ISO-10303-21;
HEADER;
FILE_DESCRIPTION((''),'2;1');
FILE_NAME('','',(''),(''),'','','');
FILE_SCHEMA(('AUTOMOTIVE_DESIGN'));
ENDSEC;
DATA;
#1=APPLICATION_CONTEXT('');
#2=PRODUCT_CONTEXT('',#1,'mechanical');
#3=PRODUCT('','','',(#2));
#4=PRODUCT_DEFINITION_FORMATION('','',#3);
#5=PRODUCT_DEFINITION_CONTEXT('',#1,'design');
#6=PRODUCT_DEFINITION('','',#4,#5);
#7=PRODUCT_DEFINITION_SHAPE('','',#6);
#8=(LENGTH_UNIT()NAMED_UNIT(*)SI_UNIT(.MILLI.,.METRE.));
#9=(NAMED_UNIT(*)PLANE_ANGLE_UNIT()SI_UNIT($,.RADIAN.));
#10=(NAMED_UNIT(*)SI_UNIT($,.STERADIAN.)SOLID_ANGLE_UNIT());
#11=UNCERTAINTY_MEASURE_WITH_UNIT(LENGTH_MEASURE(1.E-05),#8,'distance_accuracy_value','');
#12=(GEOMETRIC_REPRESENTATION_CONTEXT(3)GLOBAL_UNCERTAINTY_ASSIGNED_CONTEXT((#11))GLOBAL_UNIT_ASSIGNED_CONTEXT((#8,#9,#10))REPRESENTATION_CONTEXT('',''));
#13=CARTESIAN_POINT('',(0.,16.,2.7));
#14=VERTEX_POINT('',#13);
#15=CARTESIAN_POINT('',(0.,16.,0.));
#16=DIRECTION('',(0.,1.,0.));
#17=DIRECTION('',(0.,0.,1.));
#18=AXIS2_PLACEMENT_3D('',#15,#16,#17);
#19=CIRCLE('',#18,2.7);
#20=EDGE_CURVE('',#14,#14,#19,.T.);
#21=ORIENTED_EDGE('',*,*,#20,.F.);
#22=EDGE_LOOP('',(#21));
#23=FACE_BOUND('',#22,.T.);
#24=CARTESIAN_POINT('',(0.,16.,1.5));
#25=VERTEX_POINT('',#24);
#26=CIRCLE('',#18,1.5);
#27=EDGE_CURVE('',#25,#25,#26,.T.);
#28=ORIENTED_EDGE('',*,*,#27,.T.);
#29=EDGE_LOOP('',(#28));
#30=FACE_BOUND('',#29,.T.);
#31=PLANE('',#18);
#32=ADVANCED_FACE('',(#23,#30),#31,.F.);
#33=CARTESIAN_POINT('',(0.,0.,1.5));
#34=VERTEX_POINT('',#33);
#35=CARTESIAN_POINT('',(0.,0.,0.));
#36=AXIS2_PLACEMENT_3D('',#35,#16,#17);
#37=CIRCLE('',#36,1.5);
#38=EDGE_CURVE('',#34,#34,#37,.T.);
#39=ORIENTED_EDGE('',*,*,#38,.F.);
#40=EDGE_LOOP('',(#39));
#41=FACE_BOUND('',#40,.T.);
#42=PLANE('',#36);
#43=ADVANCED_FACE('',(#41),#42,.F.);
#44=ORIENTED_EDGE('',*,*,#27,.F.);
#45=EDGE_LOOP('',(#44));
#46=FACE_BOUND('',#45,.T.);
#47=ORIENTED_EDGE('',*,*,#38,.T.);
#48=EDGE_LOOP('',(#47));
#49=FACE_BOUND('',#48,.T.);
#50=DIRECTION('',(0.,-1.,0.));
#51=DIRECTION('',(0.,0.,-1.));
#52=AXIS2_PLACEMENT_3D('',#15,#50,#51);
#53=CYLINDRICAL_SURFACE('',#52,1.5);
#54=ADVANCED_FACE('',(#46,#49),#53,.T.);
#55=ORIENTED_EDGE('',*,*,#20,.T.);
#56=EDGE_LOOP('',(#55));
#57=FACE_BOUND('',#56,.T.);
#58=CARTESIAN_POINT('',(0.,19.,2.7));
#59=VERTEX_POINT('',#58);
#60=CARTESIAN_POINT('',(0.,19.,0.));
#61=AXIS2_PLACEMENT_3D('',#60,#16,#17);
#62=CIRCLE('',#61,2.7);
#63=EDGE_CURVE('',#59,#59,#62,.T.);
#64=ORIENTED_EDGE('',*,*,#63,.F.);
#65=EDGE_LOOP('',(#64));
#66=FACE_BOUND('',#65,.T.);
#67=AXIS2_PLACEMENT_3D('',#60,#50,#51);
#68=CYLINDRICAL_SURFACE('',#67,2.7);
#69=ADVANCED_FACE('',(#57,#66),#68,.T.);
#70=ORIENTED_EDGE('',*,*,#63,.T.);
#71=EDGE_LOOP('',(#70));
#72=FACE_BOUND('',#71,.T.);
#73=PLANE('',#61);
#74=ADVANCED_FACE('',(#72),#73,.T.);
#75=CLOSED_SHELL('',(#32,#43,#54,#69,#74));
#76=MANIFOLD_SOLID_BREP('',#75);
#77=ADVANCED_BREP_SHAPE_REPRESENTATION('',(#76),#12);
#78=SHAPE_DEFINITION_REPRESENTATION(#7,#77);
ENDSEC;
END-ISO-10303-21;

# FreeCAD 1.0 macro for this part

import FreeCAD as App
import Part
import Sketcher

V = App.Vector
Q = App.Units.Quantity

doc = App.newDocument("Part")
params = doc.addObject("Spreadsheet::Sheet", "Params")
for row, (alias, value) in enumerate([
    ("sketch1_diameter", "3 mm"),
    ("pad1_length", "16 mm"),
    ("sketch2_diameter", "5.4 mm"),
    ("pad2_length", "3 mm"),
], start=1):
    params.set(f"A{row}", alias)
    params.set(f"B{row}", "=" + value)
    params.setAlias(f"B{row}", alias)

body = doc.addObject("PartDesign::Body", "Body")

# Sketch on XZ plane
sketch1 = body.newObject("Sketcher::SketchObject", "Sketch")
sketch1.AttachmentSupport = (doc.getObject("XZ_Plane"), [""])
sketch1.MapMode = "FlatFace"
sketch1.addGeometry(Part.Circle(V(0, 0, 0), V(0, 0, 1), 1.5), False)
sketch1.addConstraint(Sketcher.Constraint("Coincident", 0, 3, -1, 1))
sketch1.addConstraint(Sketcher.Constraint("Diameter", 0, Q("3 mm")))
sketch1.setExpression("Constraints[1]", "Params.sketch1_diameter")
pad1 = body.newObject("PartDesign::Pad", "Pad")
pad1.Profile = sketch1
pad1.setExpression("Length", "Params.pad1_length")
pad1.Reversed = True

# Sketch on XZ plane
sketch2 = body.newObject("Sketcher::SketchObject", "Sketch001")
sketch2.AttachmentSupport = (doc.getObject("XZ_Plane"), [""])
sketch2.MapMode = "FlatFace"
sketch2.AttachmentOffset = App.Placement(V(0, 0, -16), App.Rotation())
sketch2.addGeometry(Part.Circle(V(0, 0, 0), V(0, 0, 1), 2.7), False)
sketch2.addConstraint(Sketcher.Constraint("Coincident", 0, 3, -1, 1))
sketch2.addConstraint(Sketcher.Constraint("Diameter", 0, Q("5.4 mm")))
sketch2.setExpression("Constraints[1]", "Params.sketch2_diameter")
pad2 = body.newObject("PartDesign::Pad", "Pad001")
pad2.Profile = sketch2
pad2.setExpression("Length", "Params.pad2_length")
pad2.Reversed = True

doc.recompute()
